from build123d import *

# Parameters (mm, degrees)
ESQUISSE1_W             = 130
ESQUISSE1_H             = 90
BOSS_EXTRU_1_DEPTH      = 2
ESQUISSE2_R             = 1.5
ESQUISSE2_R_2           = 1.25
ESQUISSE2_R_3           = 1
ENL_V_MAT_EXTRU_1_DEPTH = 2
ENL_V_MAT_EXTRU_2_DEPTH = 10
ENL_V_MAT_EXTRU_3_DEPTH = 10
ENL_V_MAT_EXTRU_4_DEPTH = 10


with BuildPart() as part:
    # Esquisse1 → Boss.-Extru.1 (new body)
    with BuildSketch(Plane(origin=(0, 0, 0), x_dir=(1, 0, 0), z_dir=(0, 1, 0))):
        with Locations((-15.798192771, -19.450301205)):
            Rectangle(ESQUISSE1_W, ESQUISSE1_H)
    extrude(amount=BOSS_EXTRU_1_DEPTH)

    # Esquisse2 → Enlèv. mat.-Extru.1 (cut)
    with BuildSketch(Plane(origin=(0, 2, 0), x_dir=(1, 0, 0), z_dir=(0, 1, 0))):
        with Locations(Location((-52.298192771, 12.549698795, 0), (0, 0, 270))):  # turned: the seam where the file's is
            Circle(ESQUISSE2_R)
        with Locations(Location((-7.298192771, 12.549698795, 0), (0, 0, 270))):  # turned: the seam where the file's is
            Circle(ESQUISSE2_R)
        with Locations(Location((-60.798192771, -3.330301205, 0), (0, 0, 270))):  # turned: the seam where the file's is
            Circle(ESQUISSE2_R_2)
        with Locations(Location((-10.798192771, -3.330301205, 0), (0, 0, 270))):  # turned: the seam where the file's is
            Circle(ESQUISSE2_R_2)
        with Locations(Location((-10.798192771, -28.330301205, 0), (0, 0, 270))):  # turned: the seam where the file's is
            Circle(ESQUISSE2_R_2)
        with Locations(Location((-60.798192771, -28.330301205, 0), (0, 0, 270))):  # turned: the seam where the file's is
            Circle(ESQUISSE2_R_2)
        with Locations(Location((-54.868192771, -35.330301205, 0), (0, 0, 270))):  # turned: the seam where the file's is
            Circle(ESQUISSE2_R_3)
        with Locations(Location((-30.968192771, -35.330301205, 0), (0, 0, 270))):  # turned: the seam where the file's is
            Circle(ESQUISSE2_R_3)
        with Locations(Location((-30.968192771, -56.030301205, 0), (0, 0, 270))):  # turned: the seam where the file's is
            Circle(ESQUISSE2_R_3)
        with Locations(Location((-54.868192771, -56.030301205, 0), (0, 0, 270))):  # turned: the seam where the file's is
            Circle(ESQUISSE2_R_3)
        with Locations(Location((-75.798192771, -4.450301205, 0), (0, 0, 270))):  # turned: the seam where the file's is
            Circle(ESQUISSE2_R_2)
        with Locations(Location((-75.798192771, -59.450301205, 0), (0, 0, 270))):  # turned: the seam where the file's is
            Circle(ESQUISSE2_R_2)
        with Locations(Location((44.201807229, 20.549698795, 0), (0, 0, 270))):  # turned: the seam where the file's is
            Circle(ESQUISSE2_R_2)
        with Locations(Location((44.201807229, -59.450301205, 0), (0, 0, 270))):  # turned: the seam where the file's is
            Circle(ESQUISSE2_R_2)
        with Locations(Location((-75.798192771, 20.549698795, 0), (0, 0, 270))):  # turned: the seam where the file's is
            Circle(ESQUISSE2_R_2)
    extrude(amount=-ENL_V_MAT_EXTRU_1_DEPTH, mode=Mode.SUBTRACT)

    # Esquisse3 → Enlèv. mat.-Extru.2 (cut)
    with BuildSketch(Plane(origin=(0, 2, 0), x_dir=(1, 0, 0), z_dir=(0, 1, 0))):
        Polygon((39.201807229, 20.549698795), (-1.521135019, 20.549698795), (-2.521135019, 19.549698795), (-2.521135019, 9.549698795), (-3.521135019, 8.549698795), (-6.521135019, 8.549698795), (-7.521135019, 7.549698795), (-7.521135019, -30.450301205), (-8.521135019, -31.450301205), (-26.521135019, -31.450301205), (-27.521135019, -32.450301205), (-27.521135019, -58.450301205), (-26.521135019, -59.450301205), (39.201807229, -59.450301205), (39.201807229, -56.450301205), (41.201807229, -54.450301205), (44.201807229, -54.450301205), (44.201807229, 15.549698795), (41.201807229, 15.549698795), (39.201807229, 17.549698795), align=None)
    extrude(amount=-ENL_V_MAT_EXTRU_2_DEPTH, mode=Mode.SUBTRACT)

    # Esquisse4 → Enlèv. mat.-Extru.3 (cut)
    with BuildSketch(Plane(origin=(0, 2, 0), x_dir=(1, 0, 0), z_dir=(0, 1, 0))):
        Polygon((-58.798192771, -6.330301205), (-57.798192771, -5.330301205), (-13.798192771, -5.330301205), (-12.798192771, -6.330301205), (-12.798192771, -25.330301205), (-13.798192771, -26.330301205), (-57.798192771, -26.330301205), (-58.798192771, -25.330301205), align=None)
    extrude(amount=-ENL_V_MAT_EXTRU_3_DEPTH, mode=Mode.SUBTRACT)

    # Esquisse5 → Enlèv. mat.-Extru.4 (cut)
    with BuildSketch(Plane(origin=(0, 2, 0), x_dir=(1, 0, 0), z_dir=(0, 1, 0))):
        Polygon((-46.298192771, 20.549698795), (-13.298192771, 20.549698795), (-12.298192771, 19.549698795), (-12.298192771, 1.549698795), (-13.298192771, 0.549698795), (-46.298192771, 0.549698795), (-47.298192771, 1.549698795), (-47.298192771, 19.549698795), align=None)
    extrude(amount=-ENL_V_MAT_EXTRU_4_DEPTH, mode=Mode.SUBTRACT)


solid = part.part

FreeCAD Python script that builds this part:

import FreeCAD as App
import Part
import Sketcher
Q = App.Units.Quantity

doc = App.newDocument("Part")
body = doc.addObject("PartDesign::Body", "Body")

# Sketch on XZ plane
sketch1 = body.newObject("Sketcher::SketchObject", "Sketch")
sketch1.AttachmentSupport = (doc.getObject("XZ_Plane"), [""])
sketch1.MapMode = "FlatFace"
sketch1.addGeometry(Part.LineSegment(App.Vector(-81, -26, 0), App.Vector(-81, 64, 0)), False)
sketch1.addGeometry(Part.LineSegment(App.Vector(-81, 64, 0), App.Vector(49, 64, 0)), False)
sketch1.addGeometry(Part.LineSegment(App.Vector(49, 64, 0), App.Vector(49, -26, 0)), False)
sketch1.addGeometry(Part.LineSegment(App.Vector(49, -26, 0), App.Vector(-81, -26, 0)), False)
sketch1.addConstraint(Sketcher.Constraint("Coincident", 0, 2, 1, 1))
sketch1.addConstraint(Sketcher.Constraint("Coincident", 1, 2, 2, 1))
sketch1.addConstraint(Sketcher.Constraint("Coincident", 2, 2, 3, 1))
sketch1.addConstraint(Sketcher.Constraint("Coincident", 3, 2, 0, 1))
sketch1.addConstraint(Sketcher.Constraint("Vertical", 0))
sketch1.addConstraint(Sketcher.Constraint("Horizontal", 1))
sketch1.addConstraint(Sketcher.Constraint("Vertical", 2))
sketch1.addConstraint(Sketcher.Constraint("Horizontal", 3))
sketch1.addConstraint(Sketcher.Constraint("DistanceX", 1, 1, 1, 2, Q("130 mm")))
sketch1.addConstraint(Sketcher.Constraint("DistanceY", 0, 1, 0, 2, Q("90 mm")))
sketch1.addConstraint(Sketcher.Constraint("DistanceY", -1, 1, 0, 2, Q("64.450301 mm")))
sketch1.addConstraint(Sketcher.Constraint("DistanceX", 0, 2, -1, 1, Q("80.798193 mm")))
pad1 = body.newObject("PartDesign::Pad", "Pad")
pad1.Profile = sketch1
pad1.Length = 2
pad1.Reversed = True

# Sketch on XZ plane
sketch2 = body.newObject("Sketcher::SketchObject", "Sketch001")
sketch2.AttachmentSupport = (doc.getObject("XZ_Plane"), [""])
sketch2.MapMode = "FlatFace"
sketch2.AttachmentOffset = App.Placement(App.Vector(0, 0, -2), App.Rotation())
sketch2.addGeometry(Part.Circle(App.Vector(-52.3, -12.5, 0), App.Vector(0, 0, 1), 1.5), False)
sketch2.addGeometry(Part.Circle(App.Vector(-7.3, -12.5, 0), App.Vector(0, 0, 1), 1.5), False)
sketch2.addGeometry(Part.Circle(App.Vector(-60.8, 3.3, 0), App.Vector(0, 0, 1), 1.2), False)
sketch2.addGeometry(Part.Circle(App.Vector(-10.8, 3.3, 0), App.Vector(0, 0, 1), 1.2), False)
sketch2.addGeometry(Part.Circle(App.Vector(-10.8, 28.3, 0), App.Vector(0, 0, 1), 1.2), False)
sketch2.addGeometry(Part.Circle(App.Vector(-60.8, 28.3, 0), App.Vector(0, 0, 1), 1.2), False)
sketch2.addGeometry(Part.Circle(App.Vector(-54.9, 35.3, 0), App.Vector(0, 0, 1), 1), False)
sketch2.addGeometry(Part.Circle(App.Vector(-31, 35.3, 0), App.Vector(0, 0, 1), 1), False)
sketch2.addGeometry(Part.Circle(App.Vector(-31, 56, 0), App.Vector(0, 0, 1), 1), False)
sketch2.addGeometry(Part.Circle(App.Vector(-54.9, 56, 0), App.Vector(0, 0, 1), 1), False)
sketch2.addGeometry(Part.Circle(App.Vector(-75.8, 4.5, 0), App.Vector(0, 0, 1), 1.2), False)
sketch2.addGeometry(Part.Circle(App.Vector(-75.8, 59.5, 0), App.Vector(0, 0, 1), 1.2), False)
sketch2.addGeometry(Part.Circle(App.Vector(44.2, -20.5, 0), App.Vector(0, 0, 1), 1.2), False)
sketch2.addGeometry(Part.Circle(App.Vector(44.2, 59.5, 0), App.Vector(0, 0, 1), 1.2), False)
sketch2.addGeometry(Part.Circle(App.Vector(-75.8, -20.5, 0), App.Vector(0, 0, 1), 1.2), False)
sketch2.addConstraint(Sketcher.Constraint("Equal", 0, 1))
sketch2.addConstraint(Sketcher.Constraint("Equal", 2, 3))
sketch2.addConstraint(Sketcher.Constraint("Equal", 3, 4))
sketch2.addConstraint(Sketcher.Constraint("Equal", 4, 5))
sketch2.addConstraint(Sketcher.Constraint("Equal", 6, 7))
sketch2.addConstraint(Sketcher.Constraint("Equal", 7, 8))
sketch2.addConstraint(Sketcher.Constraint("Equal", 8, 9))
sketch2.addConstraint(Sketcher.Constraint("Equal", 5, 10))
sketch2.addConstraint(Sketcher.Constraint("Equal", 10, 11))
sketch2.addConstraint(Sketcher.Constraint("Equal", 11, 12))
sketch2.addConstraint(Sketcher.Constraint("Equal", 12, 13))
sketch2.addConstraint(Sketcher.Constraint("Equal", 13, 14))
sketch2.addConstraint(Sketcher.Constraint("Horizontal", 0, 3, 1, 3))
sketch2.addConstraint(Sketcher.Constraint("Horizontal", 2, 3, 3, 3))
sketch2.addConstraint(Sketcher.Constraint("Horizontal", 4, 3, 5, 3))
sketch2.addConstraint(Sketcher.Constraint("Horizontal", 6, 3, 7, 3))
sketch2.addConstraint(Sketcher.Constraint("Horizontal", 8, 3, 9, 3))
sketch2.addConstraint(Sketcher.Constraint("Horizontal", 11, 3, 13, 3))
sketch2.addConstraint(Sketcher.Constraint("Horizontal", 12, 3, 14, 3))
sketch2.addConstraint(Sketcher.Constraint("Vertical", 3, 3, 4, 3))
sketch2.addConstraint(Sketcher.Constraint("Vertical", 2, 3, 5, 3))
sketch2.addConstraint(Sketcher.Constraint("Vertical", 7, 3, 8, 3))
sketch2.addConstraint(Sketcher.Constraint("Vertical", 6, 3, 9, 3))
sketch2.addConstraint(Sketcher.Constraint("Vertical", 10, 3, 11, 3))
sketch2.addConstraint(Sketcher.Constraint("Vertical", 12, 3, 13, 3))
sketch2.addConstraint(Sketcher.Constraint("Vertical", 11, 3, 14, 3))
sketch2.addConstraint(Sketcher.Constraint("Diameter", 0, Q("3 mm")))
sketch2.addConstraint(Sketcher.Constraint("Diameter", 6, Q("2 mm")))
sketch2.addConstraint(Sketcher.Constraint("Diameter", 2, Q("2.5 mm")))
sketch2.addConstraint(Sketcher.Constraint("DistanceX", 0, 3, 1, 3, Q("45 mm")))
sketch2.addConstraint(Sketcher.Constraint("DistanceX", 2, 3, 3, 3, Q("50 mm")))
sketch2.addConstraint(Sketcher.Constraint("DistanceY", 3, 3, 4, 3, Q("25 mm")))
sketch2.addConstraint(Sketcher.Constraint("DistanceY", 5, 3, 6, 3, Q("7 mm")))
sketch2.addConstraint(Sketcher.Constraint("DistanceX", 10, 3, 2, 3, Q("15 mm")))
sketch2.addConstraint(Sketcher.Constraint("DistanceY", 0, 3, 10, 3, Q("17 mm")))
sketch2.addConstraint(Sketcher.Constraint("DistanceY", 12, 3, 1, 3, Q("8 mm")))
sketch2.addConstraint(Sketcher.Constraint("DistanceX", 3, 3, 12, 3, Q("55 mm")))
sketch2.addConstraint(Sketcher.Constraint("DistanceY", 12, 3, 13, 3, Q("80 mm")))
sketch2.addConstraint(Sketcher.Constraint("DistanceX", 2, 3, 0, 3, Q("8.5 mm")))
sketch2.addConstraint(Sketcher.Constraint("DistanceX", 6, 3, 7, 3, Q("23.9 mm")))
sketch2.addConstraint(Sketcher.Constraint("DistanceY", 7, 3, 8, 3, Q("20.7 mm")))
sketch2.addConstraint(Sketcher.Constraint("DistanceY", 0, 3, 2, 3, Q("15.88 mm")))
sketch2.addConstraint(Sketcher.Constraint("DistanceX", 5, 3, 6, 3, Q("5.93 mm")))
sketch2.addConstraint(Sketcher.Constraint("DistanceY", 0, 3, -1, 1, Q("12.549699 mm")))
sketch2.addConstraint(Sketcher.Constraint("DistanceX", 0, 3, -1, 1, Q("52.298193 mm")))
pocket1 = body.newObject("PartDesign::Pocket", "Pocket")
pocket1.Profile = sketch2
pocket1.Length = 2
pocket1.Reversed = True

# Sketch on XZ plane
sketch3 = body.newObject("Sketcher::SketchObject", "Sketch002")
sketch3.AttachmentSupport = (doc.getObject("XZ_Plane"), [""])
sketch3.MapMode = "FlatFace"
sketch3.AttachmentOffset = App.Placement(App.Vector(0, 0, -2), App.Rotation())
sketch3.addGeometry(Part.LineSegment(App.Vector(39.2, -20.5, 0), App.Vector(-1.5, -20.5, 0)), False)
sketch3.addGeometry(Part.LineSegment(App.Vector(-1.5, -20.5, 0), App.Vector(-2.5, -19.5, 0)), False)
sketch3.addGeometry(Part.LineSegment(App.Vector(-2.5, -19.5, 0), App.Vector(-2.5, -9.5, 0)), False)
sketch3.addGeometry(Part.LineSegment(App.Vector(-2.5, -9.5, 0), App.Vector(-3.5, -8.5, 0)), False)
sketch3.addGeometry(Part.LineSegment(App.Vector(-3.5, -8.5, 0), App.Vector(-6.5, -8.5, 0)), False)
sketch3.addGeometry(Part.LineSegment(App.Vector(-6.5, -8.5, 0), App.Vector(-7.5, -7.5, 0)), False)
sketch3.addGeometry(Part.LineSegment(App.Vector(-7.5, -7.5, 0), App.Vector(-7.5, 30.5, 0)), False)
sketch3.addGeometry(Part.LineSegment(App.Vector(-7.5, 30.5, 0), App.Vector(-8.5, 31.5, 0)), False)
sketch3.addGeometry(Part.LineSegment(App.Vector(-8.5, 31.5, 0), App.Vector(-26.5, 31.5, 0)), False)
sketch3.addGeometry(Part.LineSegment(App.Vector(-26.5, 31.5, 0), App.Vector(-27.5, 32.5, 0)), False)
sketch3.addGeometry(Part.LineSegment(App.Vector(-27.5, 32.5, 0), App.Vector(-27.5, 58.5, 0)), False)
sketch3.addGeometry(Part.LineSegment(App.Vector(-27.5, 58.5, 0), App.Vector(-26.5, 59.5, 0)), False)
sketch3.addGeometry(Part.LineSegment(App.Vector(-26.5, 59.5, 0), App.Vector(39.2, 59.5, 0)), False)
sketch3.addGeometry(Part.LineSegment(App.Vector(39.2, 59.5, 0), App.Vector(39.2, 56.5, 0)), False)
sketch3.addGeometry(Part.LineSegment(App.Vector(39.2, 56.5, 0), App.Vector(41.2, 54.5, 0)), False)
sketch3.addGeometry(Part.LineSegment(App.Vector(41.2, 54.5, 0), App.Vector(44.2, 54.5, 0)), False)
sketch3.addGeometry(Part.LineSegment(App.Vector(44.2, 54.5, 0), App.Vector(44.2, -15.5, 0)), False)
sketch3.addGeometry(Part.LineSegment(App.Vector(44.2, -15.5, 0), App.Vector(41.2, -15.5, 0)), False)
sketch3.addGeometry(Part.LineSegment(App.Vector(41.2, -15.5, 0), App.Vector(39.2, -17.5, 0)), False)
sketch3.addGeometry(Part.LineSegment(App.Vector(39.2, -17.5, 0), App.Vector(39.2, -20.5, 0)), False)
sketch3.addConstraint(Sketcher.Constraint("Coincident", 0, 2, 1, 1))
sketch3.addConstraint(Sketcher.Constraint("Coincident", 1, 2, 2, 1))
sketch3.addConstraint(Sketcher.Constraint("Coincident", 2, 2, 3, 1))
sketch3.addConstraint(Sketcher.Constraint("Coincident", 3, 2, 4, 1))
sketch3.addConstraint(Sketcher.Constraint("Coincident", 4, 2, 5, 1))
sketch3.addConstraint(Sketcher.Constraint("Coincident", 5, 2, 6, 1))
sketch3.addConstraint(Sketcher.Constraint("Coincident", 6, 2, 7, 1))
sketch3.addConstraint(Sketcher.Constraint("Coincident", 7, 2, 8, 1))
sketch3.addConstraint(Sketcher.Constraint("Coincident", 8, 2, 9, 1))
sketch3.addConstraint(Sketcher.Constraint("Coincident", 9, 2, 10, 1))
sketch3.addConstraint(Sketcher.Constraint("Coincident", 10, 2, 11, 1))
sketch3.addConstraint(Sketcher.Constraint("Coincident", 11, 2, 12, 1))
sketch3.addConstraint(Sketcher.Constraint("Coincident", 12, 2, 13, 1))
sketch3.addConstraint(Sketcher.Constraint("Coincident", 13, 2, 14, 1))
sketch3.addConstraint(Sketcher.Constraint("Coincident", 14, 2, 15, 1))
sketch3.addConstraint(Sketcher.Constraint("Coincident", 15, 2, 16, 1))
sketch3.addConstraint(Sketcher.Constraint("Coincident", 16, 2, 17, 1))
sketch3.addConstraint(Sketcher.Constraint("Coincident", 17, 2, 18, 1))
sketch3.addConstraint(Sketcher.Constraint("Coincident", 18, 2, 19, 1))
sketch3.addConstraint(Sketcher.Constraint("Coincident", 19, 2, 0, 1))
sketch3.addConstraint(Sketcher.Constraint("Horizontal", 0))
sketch3.addConstraint(Sketcher.Constraint("Vertical", 2))
sketch3.addConstraint(Sketcher.Constraint("Horizontal", 4))
sketch3.addConstraint(Sketcher.Constraint("Vertical", 6))
sketch3.addConstraint(Sketcher.Constraint("Horizontal", 8))
sketch3.addConstraint(Sketcher.Constraint("Vertical", 10))
sketch3.addConstraint(Sketcher.Constraint("Horizontal", 12))
sketch3.addConstraint(Sketcher.Constraint("Vertical", 13))
sketch3.addConstraint(Sketcher.Constraint("Horizontal", 15))
sketch3.addConstraint(Sketcher.Constraint("Vertical", 16))
sketch3.addConstraint(Sketcher.Constraint("Horizontal", 17))
sketch3.addConstraint(Sketcher.Constraint("Vertical", 19))
sketch3.addConstraint(Sketcher.Constraint("Parallel", 1, 3))
sketch3.addConstraint(Sketcher.Constraint("Parallel", 3, 5))
sketch3.addConstraint(Sketcher.Constraint("Parallel", 5, 7))
sketch3.addConstraint(Sketcher.Constraint("Parallel", 7, 9))
sketch3.addConstraint(Sketcher.Constraint("Perpendicular", 9, 11))
sketch3.addConstraint(Sketcher.Constraint("Perpendicular", 11, 14))
sketch3.addConstraint(Sketcher.Constraint("Perpendicular", 14, 18))
sketch3.addConstraint(Sketcher.Constraint("Vertical", 8, 2, 11, 2))
sketch3.addConstraint(Sketcher.Constraint("Vertical", 14, 2, 17, 2))
sketch3.addConstraint(Sketcher.Constraint("Vertical", 13, 2, 18, 2))
sketch3.addConstraint(Sketcher.Constraint("Equal", 4, 15))
sketch3.addConstraint(Sketcher.Constraint("Equal", 17, 13))
sketch3.addConstraint(Sketcher.Constraint("Equal", 13, 19))
sketch3.addConstraint(Sketcher.Constraint("Equal", 1, 3))
sketch3.addConstraint(Sketcher.Constraint("Equal", 3, 5))
sketch3.addConstraint(Sketcher.Constraint("Equal", 5, 7))
sketch3.addConstraint(Sketcher.Constraint("Equal", 7, 9))
sketch3.addConstraint(Sketcher.Constraint("Equal", 9, 11))
sketch3.addConstraint(Sketcher.Constraint("DistanceX", 4, 2, 4, 1, Q("3 mm")))
sketch3.addConstraint(Sketcher.Constraint("DistanceX", 8, 2, 8, 1, Q("18 mm")))
sketch3.addConstraint(Sketcher.Constraint("DistanceY", 2, 1, 2, 2, Q("10 mm")))
sketch3.addConstraint(Sketcher.Constraint("DistanceY", 6, 1, 6, 2, Q("38 mm")))
sketch3.addConstraint(Sketcher.Constraint("DistanceY", 10, 1, 10, 2, Q("26 mm")))
sketch3.addConstraint(Sketcher.Constraint("DistanceY", 16, 2, 16, 1, Q("70 mm")))
sketch3.addConstraint(Sketcher.Constraint("DistanceX", 1, 2, 0, 2, Q("1 mm")))
sketch3.addConstraint(Sketcher.Constraint("DistanceY", 0, 2, -1, 1, Q("20.549699 mm")))
sketch3.addConstraint(Sketcher.Constraint("DistanceX", 0, 2, 0, 1, Q("40.722942 mm")))
sketch3.addConstraint(Sketcher.Constraint("DistanceX", 0, 2, -1, 1, Q("1.521135 mm")))
pocket2 = body.newObject("PartDesign::Pocket", "Pocket001")
pocket2.Profile = sketch3
pocket2.Length = 10
pocket2.Reversed = True

# Sketch on XZ plane
sketch4 = body.newObject("Sketcher::SketchObject", "Sketch003")
sketch4.AttachmentSupport = (doc.getObject("XZ_Plane"), [""])
sketch4.MapMode = "FlatFace"
sketch4.AttachmentOffset = App.Placement(App.Vector(0, 0, -2), App.Rotation())
sketch4.addGeometry(Part.LineSegment(App.Vector(-57.8, 5.3, 0), App.Vector(-58.8, 6.3, 0)), False)
sketch4.addGeometry(Part.LineSegment(App.Vector(-58.8, 6.3, 0), App.Vector(-58.8, 25.3, 0)), False)
sketch4.addGeometry(Part.LineSegment(App.Vector(-58.8, 25.3, 0), App.Vector(-57.8, 26.3, 0)), False)
sketch4.addGeometry(Part.LineSegment(App.Vector(-57.8, 26.3, 0), App.Vector(-13.8, 26.3, 0)), False)
sketch4.addGeometry(Part.LineSegment(App.Vector(-13.8, 26.3, 0), App.Vector(-12.8, 25.3, 0)), False)
sketch4.addGeometry(Part.LineSegment(App.Vector(-12.8, 25.3, 0), App.Vector(-12.8, 6.3, 0)), False)
sketch4.addGeometry(Part.LineSegment(App.Vector(-12.8, 6.3, 0), App.Vector(-13.8, 5.3, 0)), False)
sketch4.addGeometry(Part.LineSegment(App.Vector(-13.8, 5.3, 0), App.Vector(-57.8, 5.3, 0)), False)
sketch4.addConstraint(Sketcher.Constraint("Coincident", 0, 2, 1, 1))
sketch4.addConstraint(Sketcher.Constraint("Coincident", 1, 2, 2, 1))
sketch4.addConstraint(Sketcher.Constraint("Coincident", 2, 2, 3, 1))
sketch4.addConstraint(Sketcher.Constraint("Coincident", 3, 2, 4, 1))
sketch4.addConstraint(Sketcher.Constraint("Coincident", 4, 2, 5, 1))
sketch4.addConstraint(Sketcher.Constraint("Coincident", 5, 2, 6, 1))
sketch4.addConstraint(Sketcher.Constraint("Coincident", 6, 2, 7, 1))
sketch4.addConstraint(Sketcher.Constraint("Coincident", 7, 2, 0, 1))
sketch4.addConstraint(Sketcher.Constraint("Vertical", 1))
sketch4.addConstraint(Sketcher.Constraint("Horizontal", 3))
sketch4.addConstraint(Sketcher.Constraint("Vertical", 5))
sketch4.addConstraint(Sketcher.Constraint("Horizontal", 7))
sketch4.addConstraint(Sketcher.Constraint("Perpendicular", 0, 2))
sketch4.addConstraint(Sketcher.Constraint("Perpendicular", 2, 4))
sketch4.addConstraint(Sketcher.Constraint("Perpendicular", 4, 6))
sketch4.addConstraint(Sketcher.Constraint("Horizontal", 1, 2, 4, 2))
sketch4.addConstraint(Sketcher.Constraint("Horizontal", 0, 2, 5, 2))
sketch4.addConstraint(Sketcher.Constraint("Vertical", 3, 2, 6, 2))
sketch4.addConstraint(Sketcher.Constraint("Vertical", 2, 2, 7, 2))
sketch4.addConstraint(Sketcher.Constraint("DistanceX", 3, 1, 3, 2, Q("44 mm")))
sketch4.addConstraint(Sketcher.Constraint("DistanceY", 1, 1, 1, 2, Q("19 mm")))
sketch4.addConstraint(Sketcher.Constraint("DistanceX", 1, 2, 2, 2, Q("1 mm")))
sketch4.addConstraint(Sketcher.Constraint("DistanceY", -1, 1, 0, 2, Q("6.330301 mm")))
sketch4.addConstraint(Sketcher.Constraint("DistanceX", 0, 2, -1, 1, Q("58.798193 mm")))
pocket3 = body.newObject("PartDesign::Pocket", "Pocket002")
pocket3.Profile = sketch4
pocket3.Length = 10
pocket3.Reversed = True

# Sketch on XZ plane
sketch5 = body.newObject("Sketcher::SketchObject", "Sketch004")
sketch5.AttachmentSupport = (doc.getObject("XZ_Plane"), [""])
sketch5.MapMode = "FlatFace"
sketch5.AttachmentOffset = App.Placement(App.Vector(0, 0, -2), App.Rotation())
sketch5.addGeometry(Part.LineSegment(App.Vector(-13.3, -20.5, 0), App.Vector(-46.3, -20.5, 0)), False)
sketch5.addGeometry(Part.LineSegment(App.Vector(-46.3, -20.5, 0), App.Vector(-47.3, -19.5, 0)), False)
sketch5.addGeometry(Part.LineSegment(App.Vector(-47.3, -19.5, 0), App.Vector(-47.3, -1.5, 0)), False)
sketch5.addGeometry(Part.LineSegment(App.Vector(-47.3, -1.5, 0), App.Vector(-46.3, -0.5, 0)), False)
sketch5.addGeometry(Part.LineSegment(App.Vector(-46.3, -0.5, 0), App.Vector(-13.3, -0.5, 0)), False)
sketch5.addGeometry(Part.LineSegment(App.Vector(-13.3, -0.5, 0), App.Vector(-12.3, -1.5, 0)), False)
sketch5.addGeometry(Part.LineSegment(App.Vector(-12.3, -1.5, 0), App.Vector(-12.3, -19.5, 0)), False)
sketch5.addGeometry(Part.LineSegment(App.Vector(-12.3, -19.5, 0), App.Vector(-13.3, -20.5, 0)), False)
sketch5.addConstraint(Sketcher.Constraint("Coincident", 0, 2, 1, 1))
sketch5.addConstraint(Sketcher.Constraint("Coincident", 1, 2, 2, 1))
sketch5.addConstraint(Sketcher.Constraint("Coincident", 2, 2, 3, 1))
sketch5.addConstraint(Sketcher.Constraint("Coincident", 3, 2, 4, 1))
sketch5.addConstraint(Sketcher.Constraint("Coincident", 4, 2, 5, 1))
sketch5.addConstraint(Sketcher.Constraint("Coincident", 5, 2, 6, 1))
sketch5.addConstraint(Sketcher.Constraint("Coincident", 6, 2, 7, 1))
sketch5.addConstraint(Sketcher.Constraint("Coincident", 7, 2, 0, 1))
sketch5.addConstraint(Sketcher.Constraint("Horizontal", 0))
sketch5.addConstraint(Sketcher.Constraint("Vertical", 2))
sketch5.addConstraint(Sketcher.Constraint("Horizontal", 4))
sketch5.addConstraint(Sketcher.Constraint("Vertical", 6))
sketch5.addConstraint(Sketcher.Constraint("Perpendicular", 1, 3))
sketch5.addConstraint(Sketcher.Constraint("Perpendicular", 3, 5))
sketch5.addConstraint(Sketcher.Constraint("Perpendicular", 5, 7))
sketch5.addConstraint(Sketcher.Constraint("Horizontal", 2, 2, 5, 2))
sketch5.addConstraint(Sketcher.Constraint("Horizontal", 1, 2, 6, 2))
sketch5.addConstraint(Sketcher.Constraint("Vertical", 0, 2, 3, 2))
sketch5.addConstraint(Sketcher.Constraint("Vertical", 4, 2, 7, 2))
sketch5.addConstraint(Sketcher.Constraint("DistanceX", 0, 2, 0, 1, Q("33 mm")))
sketch5.addConstraint(Sketcher.Constraint("DistanceY", 2, 1, 2, 2, Q("18 mm")))
sketch5.addConstraint(Sketcher.Constraint("DistanceX", 1, 2, 0, 2, Q("1 mm")))
sketch5.addConstraint(Sketcher.Constraint("DistanceY", 0, 2, -1, 1, Q("20.549699 mm")))
sketch5.addConstraint(Sketcher.Constraint("DistanceX", 0, 2, -1, 1, Q("46.298193 mm")))
pocket4 = body.newObject("PartDesign::Pocket", "Pocket003")
pocket4.Profile = sketch5
pocket4.Length = 10
pocket4.Reversed = True

doc.recompute()
